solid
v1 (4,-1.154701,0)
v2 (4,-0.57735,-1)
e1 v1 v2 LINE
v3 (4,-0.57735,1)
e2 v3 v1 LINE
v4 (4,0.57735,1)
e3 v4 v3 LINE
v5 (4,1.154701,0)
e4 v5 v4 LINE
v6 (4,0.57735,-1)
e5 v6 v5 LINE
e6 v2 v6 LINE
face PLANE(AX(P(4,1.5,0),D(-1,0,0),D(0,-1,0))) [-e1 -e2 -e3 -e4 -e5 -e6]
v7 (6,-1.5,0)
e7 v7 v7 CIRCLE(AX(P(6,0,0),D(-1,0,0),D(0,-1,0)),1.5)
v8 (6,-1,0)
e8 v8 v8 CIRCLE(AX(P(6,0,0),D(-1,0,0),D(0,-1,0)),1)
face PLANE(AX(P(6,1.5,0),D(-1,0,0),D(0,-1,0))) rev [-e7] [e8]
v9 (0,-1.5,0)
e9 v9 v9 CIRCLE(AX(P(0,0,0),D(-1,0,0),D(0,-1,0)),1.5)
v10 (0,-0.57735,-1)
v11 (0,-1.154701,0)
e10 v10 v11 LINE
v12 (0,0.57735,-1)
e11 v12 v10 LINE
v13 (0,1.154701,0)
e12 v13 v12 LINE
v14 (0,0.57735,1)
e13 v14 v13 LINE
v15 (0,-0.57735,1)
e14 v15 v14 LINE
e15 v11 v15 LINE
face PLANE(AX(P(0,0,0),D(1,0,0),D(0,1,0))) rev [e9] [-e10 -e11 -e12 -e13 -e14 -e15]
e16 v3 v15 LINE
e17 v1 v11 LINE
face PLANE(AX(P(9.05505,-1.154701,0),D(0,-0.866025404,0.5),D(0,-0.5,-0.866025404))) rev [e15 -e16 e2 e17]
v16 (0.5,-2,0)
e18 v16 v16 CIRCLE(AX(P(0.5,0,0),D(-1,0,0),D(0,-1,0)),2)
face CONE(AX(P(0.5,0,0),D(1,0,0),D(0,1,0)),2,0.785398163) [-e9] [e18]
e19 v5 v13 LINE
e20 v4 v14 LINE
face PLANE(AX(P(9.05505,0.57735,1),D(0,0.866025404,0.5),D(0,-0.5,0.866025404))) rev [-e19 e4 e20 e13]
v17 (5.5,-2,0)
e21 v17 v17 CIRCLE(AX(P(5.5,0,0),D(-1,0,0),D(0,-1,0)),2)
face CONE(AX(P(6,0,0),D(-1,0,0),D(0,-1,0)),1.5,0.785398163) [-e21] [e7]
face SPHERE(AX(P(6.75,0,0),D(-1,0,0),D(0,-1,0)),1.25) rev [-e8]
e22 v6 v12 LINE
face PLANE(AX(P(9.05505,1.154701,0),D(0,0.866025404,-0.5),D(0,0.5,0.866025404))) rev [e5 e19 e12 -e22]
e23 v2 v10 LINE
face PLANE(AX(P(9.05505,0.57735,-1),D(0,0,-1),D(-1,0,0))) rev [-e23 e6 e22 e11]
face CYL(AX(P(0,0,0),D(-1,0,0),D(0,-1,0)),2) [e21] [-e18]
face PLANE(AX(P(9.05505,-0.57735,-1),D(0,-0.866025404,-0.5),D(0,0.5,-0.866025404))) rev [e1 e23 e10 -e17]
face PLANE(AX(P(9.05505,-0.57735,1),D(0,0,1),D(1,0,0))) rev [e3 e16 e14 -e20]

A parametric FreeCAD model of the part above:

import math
import FreeCAD as App
import Part
import Sketcher
Q = App.Units.Quantity

doc = App.newDocument("Part")
body = doc.addObject("PartDesign::Body", "Body")

# Sketch on XY plane
sketch1 = body.newObject("Sketcher::SketchObject", "Sketch")
sketch1.AttachmentSupport = (doc.getObject("XY_Plane"), [""])
sketch1.MapMode = "FlatFace"
sketch1.addGeometry([
    Part.LineSegment(App.Vector(0, 1.5, 0), App.Vector(0, 0, 0)),  # 0
    Part.LineSegment(App.Vector(0, 0, 0), App.Vector(5.5, 0, 0)),  # 1
    Part.ArcOfCircle(Part.Circle(App.Vector(6.75, 0, 0), App.Vector(0, 0, 1), 1.25), math.radians(126.869898), math.radians(180)),  # 2
    Part.LineSegment(App.Vector(6, 1, 0), App.Vector(6, 1.5, 0)),  # 3
    Part.LineSegment(App.Vector(6, 1.5, 0), App.Vector(5.5, 2, 0)),  # 4
    Part.LineSegment(App.Vector(5.5, 2, 0), App.Vector(0.5, 2, 0)),  # 5
    Part.LineSegment(App.Vector(0.5, 2, 0), App.Vector(0, 1.5, 0)),  # 6
], False)
sketch1.addConstraint([
    Sketcher.Constraint("Coincident", 0, 2, 1, 1),
    Sketcher.Constraint("Coincident", 1, 2, 2, 2),
    Sketcher.Constraint("Coincident", 2, 1, 3, 1),
    Sketcher.Constraint("Coincident", 3, 2, 4, 1),
    Sketcher.Constraint("Coincident", 4, 2, 5, 1),
    Sketcher.Constraint("Coincident", 5, 2, 6, 1),
    Sketcher.Constraint("Coincident", 6, 2, 0, 1),
    Sketcher.Constraint("Vertical", 0),
    Sketcher.Constraint("Horizontal", 1),
    Sketcher.Constraint("Vertical", 3),
    Sketcher.Constraint("Horizontal", 5),
    Sketcher.Constraint("Coincident", 0, 2, -1, 1),
    Sketcher.Constraint("PointOnObject", 2, 3, -1),
    Sketcher.Constraint("Perpendicular", 4, 6),
    Sketcher.Constraint("Horizontal", 3, 2, 6, 2),
    Sketcher.Constraint("Vertical", 1, 2, 4, 2),
    Sketcher.Constraint("Equal", 4, 6),
    Sketcher.Constraint("DistanceX", 5, 2, 5, 1, Q("5 mm")),
    Sketcher.Constraint("Radius", 2, Q("1.25 mm")),
    Sketcher.Constraint("DistanceX", 1, 1, 1, 2, Q("5.5 mm")),
    Sketcher.Constraint("DistanceY", 0, 2, 0, 1, Q("1.5 mm")),
])
revolution = body.newObject("PartDesign::Revolution", "Revolution")
revolution.Profile = sketch1
revolution.ReferenceAxis = (sketch1, ["H_Axis"])
revolution.Angle = 360

# Sketch on YZ plane
sketch2 = body.newObject("Sketcher::SketchObject", "Sketch001")
sketch2.AttachmentSupport = (doc.getObject("YZ_Plane"), [""])
sketch2.MapMode = "FlatFace"
sketch2.addGeometry([
    Part.LineSegment(App.Vector(1.154701, 0, 0), App.Vector(0.57735, -1, 0)),  # 0
    Part.LineSegment(App.Vector(0.57735, -1, 0), App.Vector(-0.57735, -1, 0)),  # 1
    Part.LineSegment(App.Vector(-0.57735, -1, 0), App.Vector(-1.154701, 0, 0)),  # 2
    Part.LineSegment(App.Vector(-1.154701, 0, 0), App.Vector(-0.57735, 1, 0)),  # 3
    Part.LineSegment(App.Vector(-0.57735, 1, 0), App.Vector(0.57735, 1, 0)),  # 4
    Part.LineSegment(App.Vector(0.57735, 1, 0), App.Vector(1.154701, 0, 0)),  # 5
], False)
sketch2.addConstraint([
    Sketcher.Constraint("Coincident", 0, 2, 1, 1),
    Sketcher.Constraint("Coincident", 1, 2, 2, 1),
    Sketcher.Constraint("Coincident", 2, 2, 3, 1),
    Sketcher.Constraint("Coincident", 3, 2, 4, 1),
    Sketcher.Constraint("Coincident", 4, 2, 5, 1),
    Sketcher.Constraint("Coincident", 5, 2, 0, 1),
    Sketcher.Constraint("Horizontal", 1),
    Sketcher.Constraint("Horizontal", 4),
    Sketcher.Constraint("Symmetric", 0, 2, 3, 2, -1, 1),
    Sketcher.Constraint("Symmetric", 2, 2, 5, 2, -1, 1),
    Sketcher.Constraint("PointOnObject", 2, 2, -1),
    Sketcher.Constraint("Parallel", 2, 5),
    Sketcher.Constraint("Vertical", 1, 2, 3, 2),
    Sketcher.Constraint("Angle", 0, Q("-120 deg")),
    Sketcher.Constraint("DistanceY", 0, 2, -1, 1, Q("1 mm")),
    Sketcher.Constraint("DistanceX", 1, 2, 1, 1, Q("1.154701 mm")),
])
pocket1 = body.newObject("PartDesign::Pocket", "Pocket")
pocket1.Profile = sketch2
pocket1.Length = 4
pocket1.Reversed = True

doc.recompute()
